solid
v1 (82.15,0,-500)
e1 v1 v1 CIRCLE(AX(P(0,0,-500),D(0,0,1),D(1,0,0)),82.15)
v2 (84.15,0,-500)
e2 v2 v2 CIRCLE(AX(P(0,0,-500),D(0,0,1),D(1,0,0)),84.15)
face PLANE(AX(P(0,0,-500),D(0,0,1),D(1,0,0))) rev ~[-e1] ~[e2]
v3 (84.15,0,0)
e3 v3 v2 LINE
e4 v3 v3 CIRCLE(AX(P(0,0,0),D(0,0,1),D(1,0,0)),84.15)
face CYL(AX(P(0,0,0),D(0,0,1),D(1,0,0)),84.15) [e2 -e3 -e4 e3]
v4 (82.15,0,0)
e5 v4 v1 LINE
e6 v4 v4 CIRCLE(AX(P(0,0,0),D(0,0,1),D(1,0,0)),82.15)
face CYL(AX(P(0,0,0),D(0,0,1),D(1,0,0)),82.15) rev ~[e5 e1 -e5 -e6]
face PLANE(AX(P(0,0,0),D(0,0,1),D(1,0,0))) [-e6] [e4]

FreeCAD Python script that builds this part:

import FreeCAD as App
import Part
import Sketcher

doc = App.newDocument("Part")
body = doc.addObject("PartDesign::Body", "Body")

# Sketch on XY plane
sketch1 = body.newObject("Sketcher::SketchObject", "Sketch")
sketch1.AttachmentSupport = (doc.getObject("XY_Plane"), [""])
sketch1.MapMode = "FlatFace"
sketch1.addGeometry(Part.Circle(App.Vector(0, 0, 0), App.Vector(0, 0, 1), 84.15), False)
sketch1.addGeometry(Part.Circle(App.Vector(0, 0, 0), App.Vector(0, 0, 1), 82.15), False)
sketch1.addConstraint(Sketcher.Constraint("Coincident", 0, 3, -1, 1))
sketch1.addConstraint(Sketcher.Constraint("Coincident", 1, 3, -1, 1))
sketch1.addConstraint(Sketcher.Constraint("Diameter", 0, 168.3))
sketch1.addConstraint(Sketcher.Constraint("Diameter", 1, 164.3))
pad1 = body.newObject("PartDesign::Pad", "Pad")
pad1.Profile = sketch1
pad1.Length = 500
pad1.Reversed = True

doc.recompute()
